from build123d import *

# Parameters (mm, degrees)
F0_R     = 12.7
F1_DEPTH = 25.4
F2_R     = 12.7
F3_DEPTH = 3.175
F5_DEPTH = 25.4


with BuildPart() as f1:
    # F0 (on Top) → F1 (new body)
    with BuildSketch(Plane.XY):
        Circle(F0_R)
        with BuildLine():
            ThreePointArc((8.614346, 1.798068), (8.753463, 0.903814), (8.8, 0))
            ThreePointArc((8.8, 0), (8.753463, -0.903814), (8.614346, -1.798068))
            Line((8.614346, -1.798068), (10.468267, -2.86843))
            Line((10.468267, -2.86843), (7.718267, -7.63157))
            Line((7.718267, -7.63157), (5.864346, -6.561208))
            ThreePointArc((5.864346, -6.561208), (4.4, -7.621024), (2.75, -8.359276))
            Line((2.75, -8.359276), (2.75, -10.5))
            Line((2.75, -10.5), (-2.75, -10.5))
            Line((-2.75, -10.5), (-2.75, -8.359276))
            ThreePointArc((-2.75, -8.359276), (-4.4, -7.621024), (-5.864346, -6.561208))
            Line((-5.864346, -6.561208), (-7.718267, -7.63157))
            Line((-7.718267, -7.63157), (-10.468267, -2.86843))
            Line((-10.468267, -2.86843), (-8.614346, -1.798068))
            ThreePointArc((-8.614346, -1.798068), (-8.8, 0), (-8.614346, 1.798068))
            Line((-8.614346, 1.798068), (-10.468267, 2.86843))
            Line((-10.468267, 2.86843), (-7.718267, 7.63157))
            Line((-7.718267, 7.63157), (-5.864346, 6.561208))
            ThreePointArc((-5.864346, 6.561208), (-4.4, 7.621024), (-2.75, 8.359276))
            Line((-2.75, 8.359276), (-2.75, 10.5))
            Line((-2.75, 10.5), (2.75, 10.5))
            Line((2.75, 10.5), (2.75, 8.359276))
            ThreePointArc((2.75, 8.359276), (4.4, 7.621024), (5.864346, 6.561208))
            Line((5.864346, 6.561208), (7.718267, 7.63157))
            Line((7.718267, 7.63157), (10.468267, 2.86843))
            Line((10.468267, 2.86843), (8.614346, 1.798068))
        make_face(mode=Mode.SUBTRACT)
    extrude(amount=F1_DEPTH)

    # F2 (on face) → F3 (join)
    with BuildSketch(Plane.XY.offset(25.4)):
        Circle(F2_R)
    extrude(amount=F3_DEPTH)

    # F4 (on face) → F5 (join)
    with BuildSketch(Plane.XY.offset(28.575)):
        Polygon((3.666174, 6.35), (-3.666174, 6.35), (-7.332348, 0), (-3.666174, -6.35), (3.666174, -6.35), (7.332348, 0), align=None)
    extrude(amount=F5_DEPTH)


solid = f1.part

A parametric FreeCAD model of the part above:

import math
import FreeCAD as App
import Part
import Sketcher

V = App.Vector
Q = App.Units.Quantity


def add_polygon(sketch, points):
    """Adds a closed chain of lines whose ends are joined by coincident constraints."""
    first, n = sketch.GeometryCount, len(points)
    for a, b in zip(points, points[1:] + points[:1]):
        sketch.addGeometry(Part.LineSegment(App.Vector(*a, 0), App.Vector(*b, 0)), False)
    for i in range(n):
        sketch.addConstraint(Sketcher.Constraint("Coincident", first + i, 2, first + (i + 1) % n, 1))

doc = App.newDocument("Part")
params = doc.addObject("Spreadsheet::Sheet", "Params")
for row, (alias, value) in enumerate([
    ("sketch1_diameter", "1 in"),
    ("pad1_length", "1 in"),
    ("sketch2_diameter", "1 in"),
    ("pad2_length", "0.125 in"),
    ("pad3_length", "1 in"),
], start=1):
    params.set(f"A{row}", alias)
    params.set(f"B{row}", "=" + value)
    params.setAlias(f"B{row}", alias)

body = doc.addObject("PartDesign::Body", "Body")

# Sketch on XY plane
sketch1 = body.newObject("Sketcher::SketchObject", "Sketch")
sketch1.AttachmentSupport = (doc.getObject("XY_Plane"), [""])
sketch1.MapMode = "FlatFace"
sketch1.addGeometry([
    Part.Circle(V(0, 0, 0), V(0, 0, 1), 12.7),  # 0
    Part.LineSegment(V(10.468267, 2.86843, 0), V(8.614346, 1.798068, 0)),  # 1
    Part.ArcOfCircle(Part.Circle(V(-0.000091, -0.000008, 0), V(0, 0, 1), 8.800091), math.radians(0.000051), math.radians(11.78997)),  # 2
    Part.ArcOfCircle(Part.Circle(V(-0.000091, 0.000008, 0), V(0, 0, 1), 8.800091), math.radians(-11.78997), math.radians(-0.000051)),  # 3
    Part.LineSegment(V(8.614346, -1.798068, 0), V(10.468267, -2.86843, 0)),  # 4
    Part.LineSegment(V(10.468267, -2.86843, 0), V(7.718267, -7.63157, 0)),  # 5
    Part.LineSegment(V(7.718267, -7.63157, 0), V(5.864346, -6.561208, 0)),  # 6
    Part.ArcOfCircle(Part.Circle(V(0.00001, -0.000016, 0), V(0, 0, 1), 8.799982), math.radians(-71.790076), math.radians(-48.209938)),  # 7
    Part.LineSegment(V(2.75, -8.359276, 0), V(2.75, -10.5, 0)),  # 8
    Part.LineSegment(V(2.75, -10.5, 0), V(-2.75, -10.5, 0)),  # 9
    Part.LineSegment(V(-2.75, -10.5, 0), V(-2.75, -8.359276, 0)),  # 10
    Part.ArcOfCircle(Part.Circle(V(-0.00001, -0.000016, 0), V(0, 0, 1), 8.799982), math.radians(-131.790062), math.radians(-108.209924)),  # 11
    Part.LineSegment(V(-5.864346, -6.561208, 0), V(-7.718267, -7.63157, 0)),  # 12
    Part.LineSegment(V(-7.718267, -7.63157, 0), V(-10.468267, -2.86843, 0)),  # 13
    Part.LineSegment(V(-10.468267, -2.86843, 0), V(-8.614346, -1.798068, 0)),  # 14
    Part.ArcOfCircle(Part.Circle(V(0.000015, 0, 0), V(0, 0, 1), 8.800015), math.radians(168.209979), math.radians(191.790021)),  # 15
    Part.LineSegment(V(-8.614346, 1.798068, 0), V(-10.468267, 2.86843, 0)),  # 16
    Part.LineSegment(V(-10.468267, 2.86843, 0), V(-7.718267, 7.63157, 0)),  # 17
    Part.LineSegment(V(-7.718267, 7.63157, 0), V(-5.864346, 6.561208, 0)),  # 18
    Part.ArcOfCircle(Part.Circle(V(-0.00001, 0.000016, 0), V(0, 0, 1), 8.799982), math.radians(108.209924), math.radians(131.790062)),  # 19
    Part.LineSegment(V(-2.75, 8.359276, 0), V(-2.75, 10.5, 0)),  # 20
    Part.LineSegment(V(-2.75, 10.5, 0), V(2.75, 10.5, 0)),  # 21
    Part.LineSegment(V(2.75, 10.5, 0), V(2.75, 8.359276, 0)),  # 22
    Part.ArcOfCircle(Part.Circle(V(0.00001, 0.000016, 0), V(0, 0, 1), 8.799982), math.radians(48.209938), math.radians(71.790076)),  # 23
    Part.LineSegment(V(5.864346, 6.561208, 0), V(7.718267, 7.63157, 0)),  # 24
    Part.LineSegment(V(7.718267, 7.63157, 0), V(10.468267, 2.86843, 0)),  # 25
], False)
sketch1.addConstraint([
    Sketcher.Constraint("Coincident", 1, 2, 2, 2),
    Sketcher.Constraint("Tangent", 2, 1, 3, 2),
    Sketcher.Constraint("Coincident", 3, 1, 4, 1),
    Sketcher.Constraint("Coincident", 4, 2, 5, 1),
    Sketcher.Constraint("Coincident", 5, 2, 6, 1),
    Sketcher.Constraint("Coincident", 6, 2, 7, 2),
    Sketcher.Constraint("Coincident", 7, 1, 8, 1),
    Sketcher.Constraint("Coincident", 8, 2, 9, 1),
    Sketcher.Constraint("Coincident", 9, 2, 10, 1),
    Sketcher.Constraint("Coincident", 10, 2, 11, 2),
    Sketcher.Constraint("Coincident", 11, 1, 12, 1),
    Sketcher.Constraint("Coincident", 12, 2, 13, 1),
    Sketcher.Constraint("Coincident", 13, 2, 14, 1),
    Sketcher.Constraint("Coincident", 14, 2, 15, 2),
    Sketcher.Constraint("Coincident", 15, 1, 16, 1),
    Sketcher.Constraint("Coincident", 16, 2, 17, 1),
    Sketcher.Constraint("Coincident", 17, 2, 18, 1),
    Sketcher.Constraint("Coincident", 18, 2, 19, 2),
    Sketcher.Constraint("Coincident", 19, 1, 20, 1),
    Sketcher.Constraint("Coincident", 20, 2, 21, 1),
    Sketcher.Constraint("Coincident", 21, 2, 22, 1),
    Sketcher.Constraint("Coincident", 22, 2, 23, 2),
    Sketcher.Constraint("Coincident", 23, 1, 24, 1),
    Sketcher.Constraint("Coincident", 24, 2, 25, 1),
    Sketcher.Constraint("Coincident", 25, 2, 1, 1),
    Sketcher.Constraint("Vertical", 8),
    Sketcher.Constraint("Horizontal", 9),
    Sketcher.Constraint("Vertical", 10),
    Sketcher.Constraint("Vertical", 20),
    Sketcher.Constraint("Horizontal", 21),
    Sketcher.Constraint("Vertical", 22),
    Sketcher.Constraint("Coincident", 0, 3, -1, 1),
    Sketcher.Constraint("Equal", 2, 3),
    Sketcher.Constraint("Equal", 7, 11),
    Sketcher.Constraint("Equal", 11, 19),
    Sketcher.Constraint("Equal", 19, 23),
    Sketcher.Constraint("Symmetric", 7, 3, 19, 3, -1, 1),
    Sketcher.Constraint("Symmetric", 11, 3, 23, 3, -1, 1),
    Sketcher.Constraint("Symmetric", 1, 2, 14, 2, -1, 1),
    Sketcher.Constraint("Symmetric", 3, 1, 15, 1, -1, 1),
    Sketcher.Constraint("Symmetric", 4, 2, 16, 2, -1, 1),
    Sketcher.Constraint("Symmetric", 5, 2, 17, 2, -1, 1),
    Sketcher.Constraint("Symmetric", 8, 2, 20, 2, -1, 1),
    Sketcher.Constraint("Symmetric", 12, 2, 24, 2, -1, 1),
    Sketcher.Constraint("Symmetric", 13, 2, 25, 2, -1, 1),
    Sketcher.Constraint("Symmetric", 7, 3, 11, 3, -2),
    Sketcher.Constraint("Symmetric", 5, 2, 12, 2, -2),
    Sketcher.Constraint("Symmetric", 4, 2, 13, 2, -2),
    Sketcher.Constraint("Symmetric", 3, 1, 14, 2, -2),
    Sketcher.Constraint("PointOnObject", 2, 1, -1),
    Sketcher.Constraint("Perpendicular", 4, 5),
    Sketcher.Constraint("Perpendicular", 5, 6),
    Sketcher.Constraint("Parallel", 1, 12),
    Sketcher.Constraint("Perpendicular", 17, 18),
    Sketcher.Constraint("Parallel", 14, 24),
    Sketcher.Constraint("Horizontal", 7, 1, 10, 2),
    Sketcher.Constraint("Horizontal", 19, 1, 22, 2),
    Sketcher.Constraint("Equal", 4, 6),
    Sketcher.Constraint("Diameter", 0, Q("1 in")),
    Sketcher.Constraint("Angle", 1, Q("-149.999995 deg")),
    Sketcher.Constraint("Radius", 2, 8.800091),
    Sketcher.Constraint("Radius", 7, 8.799982),
    Sketcher.Constraint("DistanceX", 9, 2, 9, 1, 5.5),
    Sketcher.Constraint("Radius", 15, 8.800015),
    Sketcher.Constraint("Distance", 5, 5.5),
    Sketcher.Constraint("DistanceX", -1, 1, 2, 1, 8.8),
    Sketcher.Constraint("DistanceY", 8, 2, -1, 1, 10.5),
    Sketcher.Constraint("DistanceX", 2, 3, 7, 3, 0.000102),
    Sketcher.Constraint("DistanceY", 11, 1, 2, 3, 6.5612),
    Sketcher.Constraint("DistanceY", 4, 2, -1, 1, 2.86843),
])
sketch1.setExpression("Constraints[58]", "Params.sketch1_diameter")
pad1 = body.newObject("PartDesign::Pad", "Pad")
pad1.Profile = sketch1
pad1.setExpression("Length", "Params.pad1_length")

# Sketch on XY plane
sketch2 = body.newObject("Sketcher::SketchObject", "Sketch001")
sketch2.AttachmentSupport = (doc.getObject("XY_Plane"), [""])
sketch2.MapMode = "FlatFace"
sketch2.AttachmentOffset = App.Placement(V(0, 0, 1 * 25.4), App.Rotation())
sketch2.addGeometry(Part.Circle(V(0, 0, 0), V(0, 0, 1), 13), False)
sketch2.addConstraint([
    Sketcher.Constraint("Coincident", 0, 3, -1, 1),
    Sketcher.Constraint("Diameter", 0, Q("1 in")),
])
sketch2.setExpression("Constraints[1]", "Params.sketch2_diameter")
pad2 = body.newObject("PartDesign::Pad", "Pad001")
pad2.Profile = sketch2
pad2.setExpression("Length", "Params.pad2_length")

# Sketch on XY plane
sketch3 = body.newObject("Sketcher::SketchObject", "Sketch002")
sketch3.AttachmentSupport = (doc.getObject("XY_Plane"), [""])
sketch3.MapMode = "FlatFace"
sketch3.AttachmentOffset = App.Placement(V(0, 0, 1.125 * 25.4), App.Rotation())
add_polygon(sketch3, [(4, 6), (-4, 6), (-7, 0), (-4, -6), (4, -6), (7, 0)])  # lines 0-5
sketch3.addConstraint([
    Sketcher.Constraint("Horizontal", 0),
    Sketcher.Constraint("Horizontal", 3),
    Sketcher.Constraint("Symmetric", 0, 2, 3, 2, -1, 1),
    Sketcher.Constraint("Symmetric", 1, 2, 4, 2, -1, 1),
    Sketcher.Constraint("PointOnObject", 1, 2, -1),
    Sketcher.Constraint("Parallel", 2, 5),
    Sketcher.Constraint("Vertical", 0, 2, 2, 2),
    Sketcher.Constraint("Angle", 1, Q("-119.999999 deg")),
    Sketcher.Constraint("DistanceY", 2, 2, 0, 2, Q("0.5 in")),
    Sketcher.Constraint("DistanceX", 0, 2, 0, 1, 7.332348),
])
pad3 = body.newObject("PartDesign::Pad", "Pad002")
pad3.Profile = sketch3
pad3.setExpression("Length", "Params.pad3_length")

doc.recompute()
